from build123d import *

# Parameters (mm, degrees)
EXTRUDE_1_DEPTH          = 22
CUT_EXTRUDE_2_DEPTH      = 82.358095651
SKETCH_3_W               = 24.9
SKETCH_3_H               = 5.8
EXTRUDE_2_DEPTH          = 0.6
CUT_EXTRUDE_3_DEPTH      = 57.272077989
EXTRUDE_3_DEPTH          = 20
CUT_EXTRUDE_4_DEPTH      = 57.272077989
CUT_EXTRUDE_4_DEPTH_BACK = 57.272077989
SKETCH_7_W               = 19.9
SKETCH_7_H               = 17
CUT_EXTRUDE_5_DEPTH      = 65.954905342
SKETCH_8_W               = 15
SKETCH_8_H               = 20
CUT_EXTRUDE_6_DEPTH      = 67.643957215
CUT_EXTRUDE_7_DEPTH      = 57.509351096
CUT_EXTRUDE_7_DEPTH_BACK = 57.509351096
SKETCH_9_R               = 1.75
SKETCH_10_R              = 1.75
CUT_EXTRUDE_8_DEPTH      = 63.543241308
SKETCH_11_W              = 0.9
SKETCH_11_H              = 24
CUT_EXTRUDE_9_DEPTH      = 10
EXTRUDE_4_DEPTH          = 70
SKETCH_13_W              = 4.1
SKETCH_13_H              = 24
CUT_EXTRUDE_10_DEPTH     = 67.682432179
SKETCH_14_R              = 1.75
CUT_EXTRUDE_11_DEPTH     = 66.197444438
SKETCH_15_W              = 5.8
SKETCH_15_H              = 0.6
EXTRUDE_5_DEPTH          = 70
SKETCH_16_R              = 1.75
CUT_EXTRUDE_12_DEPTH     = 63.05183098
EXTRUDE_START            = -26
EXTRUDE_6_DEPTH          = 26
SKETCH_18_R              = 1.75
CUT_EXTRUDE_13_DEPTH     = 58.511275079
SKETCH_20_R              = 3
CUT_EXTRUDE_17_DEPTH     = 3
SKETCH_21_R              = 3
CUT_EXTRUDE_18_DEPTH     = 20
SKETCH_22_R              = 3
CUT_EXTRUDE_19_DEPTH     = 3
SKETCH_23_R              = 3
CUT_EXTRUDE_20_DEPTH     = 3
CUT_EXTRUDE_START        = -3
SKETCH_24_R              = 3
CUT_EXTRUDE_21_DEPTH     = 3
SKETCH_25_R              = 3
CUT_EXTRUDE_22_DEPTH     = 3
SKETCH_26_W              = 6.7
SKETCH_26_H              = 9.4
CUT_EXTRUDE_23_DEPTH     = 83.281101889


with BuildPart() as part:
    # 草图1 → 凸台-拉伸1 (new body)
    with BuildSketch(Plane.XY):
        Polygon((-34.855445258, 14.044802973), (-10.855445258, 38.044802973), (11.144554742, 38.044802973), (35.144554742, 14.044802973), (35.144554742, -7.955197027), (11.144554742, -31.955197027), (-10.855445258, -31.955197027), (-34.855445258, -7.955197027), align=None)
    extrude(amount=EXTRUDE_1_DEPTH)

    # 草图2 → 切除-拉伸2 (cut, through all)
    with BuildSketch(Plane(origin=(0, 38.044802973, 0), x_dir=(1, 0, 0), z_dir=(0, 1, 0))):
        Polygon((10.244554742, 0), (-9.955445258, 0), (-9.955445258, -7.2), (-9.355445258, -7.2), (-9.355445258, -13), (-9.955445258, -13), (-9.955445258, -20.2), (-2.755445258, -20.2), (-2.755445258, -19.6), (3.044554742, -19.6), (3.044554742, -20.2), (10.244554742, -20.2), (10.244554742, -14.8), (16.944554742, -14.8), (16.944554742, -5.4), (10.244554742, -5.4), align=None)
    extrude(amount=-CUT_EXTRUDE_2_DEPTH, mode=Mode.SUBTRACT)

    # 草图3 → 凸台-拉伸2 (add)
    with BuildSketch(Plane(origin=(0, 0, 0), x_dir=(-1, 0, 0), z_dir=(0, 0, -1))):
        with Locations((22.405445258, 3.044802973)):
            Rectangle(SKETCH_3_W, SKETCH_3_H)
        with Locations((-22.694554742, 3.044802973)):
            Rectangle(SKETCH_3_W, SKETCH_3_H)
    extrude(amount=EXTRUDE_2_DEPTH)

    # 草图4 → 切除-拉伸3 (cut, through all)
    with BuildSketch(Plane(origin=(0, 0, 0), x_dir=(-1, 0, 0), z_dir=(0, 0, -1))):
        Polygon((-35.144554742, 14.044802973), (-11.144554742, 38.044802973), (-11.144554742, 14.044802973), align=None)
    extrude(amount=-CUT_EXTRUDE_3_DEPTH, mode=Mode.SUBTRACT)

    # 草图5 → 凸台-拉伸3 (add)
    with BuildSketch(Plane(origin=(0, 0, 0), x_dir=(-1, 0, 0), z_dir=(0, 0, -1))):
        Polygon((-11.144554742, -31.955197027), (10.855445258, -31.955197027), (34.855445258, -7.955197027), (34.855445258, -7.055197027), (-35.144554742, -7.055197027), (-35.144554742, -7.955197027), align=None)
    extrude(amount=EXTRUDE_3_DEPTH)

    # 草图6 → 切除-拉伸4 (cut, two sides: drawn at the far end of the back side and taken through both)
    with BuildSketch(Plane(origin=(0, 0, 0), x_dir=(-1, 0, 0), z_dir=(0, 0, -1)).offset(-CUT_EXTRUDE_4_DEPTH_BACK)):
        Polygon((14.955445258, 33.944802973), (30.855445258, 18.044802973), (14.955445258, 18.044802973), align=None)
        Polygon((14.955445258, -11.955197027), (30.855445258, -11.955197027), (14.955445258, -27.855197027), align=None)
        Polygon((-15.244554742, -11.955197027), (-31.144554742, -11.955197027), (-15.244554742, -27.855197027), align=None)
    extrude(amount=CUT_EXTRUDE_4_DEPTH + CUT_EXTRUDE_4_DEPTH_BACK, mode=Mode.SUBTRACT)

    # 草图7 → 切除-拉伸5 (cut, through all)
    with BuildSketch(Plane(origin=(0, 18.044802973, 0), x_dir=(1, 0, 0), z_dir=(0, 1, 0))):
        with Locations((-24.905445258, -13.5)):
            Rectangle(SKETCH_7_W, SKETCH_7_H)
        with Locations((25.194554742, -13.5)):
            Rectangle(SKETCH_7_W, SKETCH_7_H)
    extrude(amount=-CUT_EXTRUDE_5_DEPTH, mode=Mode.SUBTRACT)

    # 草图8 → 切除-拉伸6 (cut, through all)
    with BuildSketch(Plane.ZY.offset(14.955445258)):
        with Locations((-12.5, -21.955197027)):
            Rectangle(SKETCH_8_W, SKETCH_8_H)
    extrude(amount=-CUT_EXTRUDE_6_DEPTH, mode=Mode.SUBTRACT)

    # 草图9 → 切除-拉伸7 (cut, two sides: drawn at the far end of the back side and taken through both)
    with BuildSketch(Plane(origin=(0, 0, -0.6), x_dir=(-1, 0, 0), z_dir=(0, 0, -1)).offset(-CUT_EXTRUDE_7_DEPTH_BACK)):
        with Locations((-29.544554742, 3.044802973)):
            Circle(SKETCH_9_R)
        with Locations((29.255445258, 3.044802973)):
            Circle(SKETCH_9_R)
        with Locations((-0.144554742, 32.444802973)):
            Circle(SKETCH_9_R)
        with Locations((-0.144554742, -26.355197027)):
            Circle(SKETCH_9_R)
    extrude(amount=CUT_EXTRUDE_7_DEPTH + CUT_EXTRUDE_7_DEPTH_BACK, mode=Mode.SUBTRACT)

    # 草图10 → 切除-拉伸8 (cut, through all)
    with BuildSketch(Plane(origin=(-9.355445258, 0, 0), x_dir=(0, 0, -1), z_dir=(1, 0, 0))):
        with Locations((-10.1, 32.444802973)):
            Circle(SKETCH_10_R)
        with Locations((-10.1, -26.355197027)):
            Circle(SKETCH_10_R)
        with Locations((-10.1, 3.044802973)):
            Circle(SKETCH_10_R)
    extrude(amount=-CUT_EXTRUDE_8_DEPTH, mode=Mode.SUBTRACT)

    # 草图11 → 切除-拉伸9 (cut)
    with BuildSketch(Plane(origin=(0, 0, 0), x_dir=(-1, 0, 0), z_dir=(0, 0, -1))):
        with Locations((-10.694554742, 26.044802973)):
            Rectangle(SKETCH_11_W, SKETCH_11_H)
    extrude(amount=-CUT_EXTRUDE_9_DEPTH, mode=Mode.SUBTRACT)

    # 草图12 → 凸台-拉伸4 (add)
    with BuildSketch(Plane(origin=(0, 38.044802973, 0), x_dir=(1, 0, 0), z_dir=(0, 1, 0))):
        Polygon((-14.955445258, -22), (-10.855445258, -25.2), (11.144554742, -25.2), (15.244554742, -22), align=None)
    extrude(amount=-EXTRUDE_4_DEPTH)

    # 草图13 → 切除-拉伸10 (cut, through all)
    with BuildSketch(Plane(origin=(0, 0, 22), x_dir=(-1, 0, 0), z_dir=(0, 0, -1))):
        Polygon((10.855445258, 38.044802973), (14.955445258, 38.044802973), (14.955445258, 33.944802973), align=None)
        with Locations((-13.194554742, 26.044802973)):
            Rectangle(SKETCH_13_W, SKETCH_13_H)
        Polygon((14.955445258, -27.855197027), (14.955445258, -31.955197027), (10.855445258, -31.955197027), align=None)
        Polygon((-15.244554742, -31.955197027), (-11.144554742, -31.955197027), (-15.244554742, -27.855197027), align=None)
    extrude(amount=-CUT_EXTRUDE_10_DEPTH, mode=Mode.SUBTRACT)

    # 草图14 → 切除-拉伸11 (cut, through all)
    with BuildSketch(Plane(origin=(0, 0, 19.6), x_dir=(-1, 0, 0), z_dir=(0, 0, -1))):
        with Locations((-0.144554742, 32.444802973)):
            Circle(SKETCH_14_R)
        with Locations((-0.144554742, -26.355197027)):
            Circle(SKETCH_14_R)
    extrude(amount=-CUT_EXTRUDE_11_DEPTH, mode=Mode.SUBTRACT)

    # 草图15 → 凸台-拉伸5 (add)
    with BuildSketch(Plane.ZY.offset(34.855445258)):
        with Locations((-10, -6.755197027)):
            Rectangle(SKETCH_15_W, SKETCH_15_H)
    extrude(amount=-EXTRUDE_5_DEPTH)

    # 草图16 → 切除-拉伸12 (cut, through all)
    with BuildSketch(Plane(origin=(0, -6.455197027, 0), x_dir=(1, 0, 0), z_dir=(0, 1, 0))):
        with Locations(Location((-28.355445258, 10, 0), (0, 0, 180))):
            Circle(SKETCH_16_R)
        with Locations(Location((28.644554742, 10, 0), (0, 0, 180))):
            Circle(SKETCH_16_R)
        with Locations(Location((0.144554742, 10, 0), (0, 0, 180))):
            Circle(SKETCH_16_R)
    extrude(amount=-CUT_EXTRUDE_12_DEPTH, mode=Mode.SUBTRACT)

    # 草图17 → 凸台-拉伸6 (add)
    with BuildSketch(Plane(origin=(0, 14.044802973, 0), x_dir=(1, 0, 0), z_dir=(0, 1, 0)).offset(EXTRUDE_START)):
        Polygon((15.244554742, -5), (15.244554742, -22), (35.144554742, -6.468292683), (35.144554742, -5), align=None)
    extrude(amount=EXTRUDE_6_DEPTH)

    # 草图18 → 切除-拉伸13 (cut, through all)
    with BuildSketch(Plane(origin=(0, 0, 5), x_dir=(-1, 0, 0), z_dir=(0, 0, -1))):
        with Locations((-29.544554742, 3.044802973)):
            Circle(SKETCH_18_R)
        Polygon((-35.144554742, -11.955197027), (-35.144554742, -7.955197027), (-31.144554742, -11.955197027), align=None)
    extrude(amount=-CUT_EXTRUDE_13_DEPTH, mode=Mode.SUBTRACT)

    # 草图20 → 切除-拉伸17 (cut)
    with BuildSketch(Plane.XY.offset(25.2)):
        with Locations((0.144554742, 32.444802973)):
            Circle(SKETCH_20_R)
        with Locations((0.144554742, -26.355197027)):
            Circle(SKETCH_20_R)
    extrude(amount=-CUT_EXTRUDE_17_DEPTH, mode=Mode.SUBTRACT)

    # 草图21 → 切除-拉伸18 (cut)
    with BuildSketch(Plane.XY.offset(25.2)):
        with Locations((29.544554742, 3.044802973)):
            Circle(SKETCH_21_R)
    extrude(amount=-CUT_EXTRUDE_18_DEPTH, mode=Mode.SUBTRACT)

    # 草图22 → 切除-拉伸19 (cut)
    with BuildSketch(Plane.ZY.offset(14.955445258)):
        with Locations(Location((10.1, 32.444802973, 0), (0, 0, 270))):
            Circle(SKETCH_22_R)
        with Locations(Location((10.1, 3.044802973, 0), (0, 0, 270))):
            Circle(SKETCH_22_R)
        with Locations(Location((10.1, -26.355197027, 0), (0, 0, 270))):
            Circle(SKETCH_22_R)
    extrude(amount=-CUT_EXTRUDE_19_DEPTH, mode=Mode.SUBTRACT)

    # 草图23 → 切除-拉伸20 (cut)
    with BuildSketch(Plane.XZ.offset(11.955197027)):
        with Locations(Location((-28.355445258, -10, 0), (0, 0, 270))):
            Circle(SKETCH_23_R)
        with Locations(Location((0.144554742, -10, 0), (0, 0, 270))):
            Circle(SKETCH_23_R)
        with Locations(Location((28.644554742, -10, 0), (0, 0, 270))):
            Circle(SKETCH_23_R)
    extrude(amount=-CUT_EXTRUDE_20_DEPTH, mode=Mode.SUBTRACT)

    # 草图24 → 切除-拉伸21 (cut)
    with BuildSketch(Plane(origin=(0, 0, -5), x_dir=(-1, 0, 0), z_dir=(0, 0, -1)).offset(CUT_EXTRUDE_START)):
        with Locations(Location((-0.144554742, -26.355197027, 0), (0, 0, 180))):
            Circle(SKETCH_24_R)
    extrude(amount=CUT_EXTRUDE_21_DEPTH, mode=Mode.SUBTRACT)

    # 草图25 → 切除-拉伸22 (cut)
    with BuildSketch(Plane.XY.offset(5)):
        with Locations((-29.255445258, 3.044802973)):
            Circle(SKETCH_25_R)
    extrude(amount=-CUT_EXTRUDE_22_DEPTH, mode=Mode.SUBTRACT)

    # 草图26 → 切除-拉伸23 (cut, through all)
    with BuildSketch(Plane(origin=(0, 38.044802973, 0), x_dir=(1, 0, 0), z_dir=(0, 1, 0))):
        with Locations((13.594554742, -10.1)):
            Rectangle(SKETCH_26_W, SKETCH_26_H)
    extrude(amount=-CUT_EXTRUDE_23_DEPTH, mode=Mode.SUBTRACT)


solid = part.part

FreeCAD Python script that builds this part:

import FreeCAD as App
import Part
import Sketcher

V = App.Vector

doc = App.newDocument("Part")
body = doc.addObject("PartDesign::Body", "Body")

# Sketch on XY plane
sketch1 = doc.addObject("Sketcher::SketchObject", "Sketch")
body.addObject(sketch1)
sketch1.AttachmentSupport = (doc.XY_Plane, [""])
sketch1.MapMode = "FlatFace"
sketch1.addGeometry([
    Part.LineSegment(V(-10.855445, 38.044803, 0), V(-34.855445, 14.044803, 0)),  # 0
    Part.LineSegment(V(-34.855445, 14.044803, 0), V(-34.855445, -7.955197, 0)),  # 1
    Part.LineSegment(V(-34.855445, -7.955197, 0), V(-10.855445, -31.955197, 0)),  # 2
    Part.LineSegment(V(-10.855445, -31.955197, 0), V(11.144555, -31.955197, 0)),  # 3
    Part.LineSegment(V(11.144555, -31.955197, 0), V(35.144555, -7.955197, 0)),  # 4
    Part.LineSegment(V(35.144555, -7.955197, 0), V(35.144555, 14.044803, 0)),  # 5
    Part.LineSegment(V(35.144555, 14.044803, 0), V(11.144555, 38.044803, 0)),  # 6
    Part.LineSegment(V(11.144555, 38.044803, 0), V(-10.855445, 38.044803, 0)),  # 7
], False)
sketch1.addConstraint([
    Sketcher.Constraint("Coincident", 0, 2, 1, 1),
    Sketcher.Constraint("Coincident", 1, 2, 2, 1),
    Sketcher.Constraint("Coincident", 2, 2, 3, 1),
    Sketcher.Constraint("Coincident", 3, 2, 4, 1),
    Sketcher.Constraint("Coincident", 4, 2, 5, 1),
    Sketcher.Constraint("Coincident", 5, 2, 6, 1),
    Sketcher.Constraint("Coincident", 6, 2, 7, 1),
    Sketcher.Constraint("Coincident", 7, 2, 0, 1),
    Sketcher.Constraint("Vertical", 1),
    Sketcher.Constraint("Horizontal", 3),
    Sketcher.Constraint("Vertical", 5),
    Sketcher.Constraint("Horizontal", 7),
    Sketcher.Constraint("Perpendicular", 0, 2),
    Sketcher.Constraint("Perpendicular", 2, 4),
    Sketcher.Constraint("Perpendicular", 4, 6),
    Sketcher.Constraint("Horizontal", 1, 2, 4, 2),
    Sketcher.Constraint("Horizontal", 0, 2, 5, 2),
    Sketcher.Constraint("Vertical", 3, 2, 6, 2),
    Sketcher.Constraint("Vertical", 2, 2, 7, 2),
    Sketcher.Constraint("Equal", 7, 1),
    Sketcher.Constraint("DistanceX", 3, 1, 3, 2, 22.0),
    Sketcher.Constraint("DistanceX", 1, 2, 2, 2, 24.0),
    Sketcher.Constraint("DistanceX", 0, 2, -1, 1, 34.855445),
    Sketcher.Constraint("DistanceY", -1, 1, 0, 2, 14.044803),
])
pad1 = doc.addObject("PartDesign::Pad", "Pad")
body.addObject(pad1)
pad1.Profile = sketch1
pad1.Length = 22

# Sketch on XZ plane
sketch2 = doc.addObject("Sketcher::SketchObject", "Sketch001")
body.addObject(sketch2)
sketch2.AttachmentSupport = (doc.XZ_Plane, [""])
sketch2.MapMode = "FlatFace"
sketch2.AttachmentOffset = App.Placement(V(0, 0, -38.044803), App.Rotation())
sketch2.addGeometry([
    Part.LineSegment(V(10.244555, 0, 0), V(-9.955445, 0, 0)),  # 0
    Part.LineSegment(V(-9.955445, 0, 0), V(-9.955445, 7.2, 0)),  # 1
    Part.LineSegment(V(-9.955445, 7.2, 0), V(-9.355445, 7.2, 0)),  # 2
    Part.LineSegment(V(-9.355445, 7.2, 0), V(-9.355445, 13, 0)),  # 3
    Part.LineSegment(V(-9.355445, 13, 0), V(-9.955445, 13, 0)),  # 4
    Part.LineSegment(V(-9.955445, 13, 0), V(-9.955445, 20.2, 0)),  # 5
    Part.LineSegment(V(-9.955445, 20.2, 0), V(-2.755445, 20.2, 0)),  # 6
    Part.LineSegment(V(-2.755445, 20.2, 0), V(-2.755445, 19.6, 0)),  # 7
    Part.LineSegment(V(-2.755445, 19.6, 0), V(3.044555, 19.6, 0)),  # 8
    Part.LineSegment(V(3.044555, 19.6, 0), V(3.044555, 20.2, 0)),  # 9
    Part.LineSegment(V(3.044555, 20.2, 0), V(10.244555, 20.2, 0)),  # 10
    Part.LineSegment(V(10.244555, 20.2, 0), V(10.244555, 14.8, 0)),  # 11
    Part.LineSegment(V(10.244555, 14.8, 0), V(16.944555, 14.8, 0)),  # 12
    Part.LineSegment(V(16.944555, 14.8, 0), V(16.944555, 5.4, 0)),  # 13
    Part.LineSegment(V(16.944555, 5.4, 0), V(10.244555, 5.4, 0)),  # 14
    Part.LineSegment(V(10.244555, 5.4, 0), V(10.244555, 0, 0)),  # 15
], False)
sketch2.addConstraint([
    Sketcher.Constraint("Coincident", 0, 2, 1, 1),
    Sketcher.Constraint("Coincident", 1, 2, 2, 1),
    Sketcher.Constraint("Coincident", 2, 2, 3, 1),
    Sketcher.Constraint("Coincident", 3, 2, 4, 1),
    Sketcher.Constraint("Coincident", 4, 2, 5, 1),
    Sketcher.Constraint("Coincident", 5, 2, 6, 1),
    Sketcher.Constraint("Coincident", 6, 2, 7, 1),
    Sketcher.Constraint("Coincident", 7, 2, 8, 1),
    Sketcher.Constraint("Coincident", 8, 2, 9, 1),
    Sketcher.Constraint("Coincident", 9, 2, 10, 1),
    Sketcher.Constraint("Coincident", 10, 2, 11, 1),
    Sketcher.Constraint("Coincident", 11, 2, 12, 1),
    Sketcher.Constraint("Coincident", 12, 2, 13, 1),
    Sketcher.Constraint("Coincident", 13, 2, 14, 1),
    Sketcher.Constraint("Coincident", 14, 2, 15, 1),
    Sketcher.Constraint("Coincident", 15, 2, 0, 1),
    Sketcher.Constraint("Horizontal", 0),
    Sketcher.Constraint("Vertical", 1),
    Sketcher.Constraint("Horizontal", 2),
    Sketcher.Constraint("Vertical", 3),
    Sketcher.Constraint("Horizontal", 4),
    Sketcher.Constraint("Vertical", 5),
    Sketcher.Constraint("Horizontal", 6),
    Sketcher.Constraint("Vertical", 7),
    Sketcher.Constraint("Horizontal", 8),
    Sketcher.Constraint("Vertical", 9),
    Sketcher.Constraint("Horizontal", 10),
    Sketcher.Constraint("Vertical", 11),
    Sketcher.Constraint("Horizontal", 12),
    Sketcher.Constraint("Vertical", 13),
    Sketcher.Constraint("Horizontal", 14),
    Sketcher.Constraint("Vertical", 15),
    Sketcher.Constraint("PointOnObject", 0, 2, -1),
    Sketcher.Constraint("Horizontal", 6, 2, 9, 2),
    Sketcher.Constraint("Vertical", 1, 2, 4, 2),
    Sketcher.Constraint("Vertical", 11, 2, 14, 2),
    Sketcher.Constraint("Equal", 6, 10),
    Sketcher.Constraint("Equal", 10, 1),
    Sketcher.Constraint("Equal", 8, 3),
    Sketcher.Constraint("Equal", 1, 5),
    Sketcher.Constraint("Equal", 4, 7),
    Sketcher.Constraint("Equal", 11, 15),
    Sketcher.Constraint("DistanceX", 0, 2, 0, 1, 20.2),
    Sketcher.Constraint("DistanceX", 2, 1, 2, 2, 0.6),
    Sketcher.Constraint("DistanceX", 6, 1, 6, 2, 7.2),
    Sketcher.Constraint("DistanceX", 12, 1, 12, 2, 6.7),
    Sketcher.Constraint("DistanceY", 11, 2, 11, 1, 5.4),
    Sketcher.Constraint("DistanceX", 0, 2, -1, 1, 9.955445),
])
pocket1 = doc.addObject("PartDesign::Pocket", "Pocket")
body.addObject(pocket1)
pocket1.Profile = sketch2
pocket1.Type = "ThroughAll"
pocket1.Reversed = True

# Sketch on XY plane
sketch3 = doc.addObject("Sketcher::SketchObject", "Sketch002")
body.addObject(sketch3)
sketch3.AttachmentSupport = (doc.XY_Plane, [""])
sketch3.MapMode = "FlatFace"
sketch3.addGeometry([
    Part.LineSegment(V(-9.955445, 5.944803, 0), V(-9.955445, 0.144803, 0)),  # 0
    Part.LineSegment(V(-9.955445, 0.144803, 0), V(-34.855445, 0.144803, 0)),  # 1
    Part.LineSegment(V(-34.855445, 0.144803, 0), V(-34.855445, 5.944803, 0)),  # 2
    Part.LineSegment(V(-34.855445, 5.944803, 0), V(-9.955445, 5.944803, 0)),  # 3
    Part.LineSegment(V(35.144555, 5.944803, 0), V(35.144555, 0.144803, 0)),  # 4
    Part.LineSegment(V(35.144555, 0.144803, 0), V(10.244555, 0.144803, 0)),  # 5
    Part.LineSegment(V(10.244555, 0.144803, 0), V(10.244555, 5.944803, 0)),  # 6
    Part.LineSegment(V(10.244555, 5.944803, 0), V(35.144555, 5.944803, 0)),  # 7
], False)
sketch3.addConstraint([
    Sketcher.Constraint("Coincident", 0, 2, 1, 1),
    Sketcher.Constraint("Coincident", 1, 2, 2, 1),
    Sketcher.Constraint("Coincident", 2, 2, 3, 1),
    Sketcher.Constraint("Coincident", 3, 2, 0, 1),
    Sketcher.Constraint("Coincident", 4, 2, 5, 1),
    Sketcher.Constraint("Coincident", 5, 2, 6, 1),
    Sketcher.Constraint("Coincident", 6, 2, 7, 1),
    Sketcher.Constraint("Coincident", 7, 2, 4, 1),
    Sketcher.Constraint("Vertical", 0),
    Sketcher.Constraint("Horizontal", 1),
    Sketcher.Constraint("Vertical", 2),
    Sketcher.Constraint("Horizontal", 3),
    Sketcher.Constraint("Vertical", 4),
    Sketcher.Constraint("Horizontal", 5),
    Sketcher.Constraint("Vertical", 6),
    Sketcher.Constraint("Horizontal", 7),
    Sketcher.Constraint("Horizontal", 1, 2, 4, 2),
    Sketcher.Constraint("Horizontal", 3, 2, 6, 2),
    Sketcher.Constraint("Equal", 3, 5),
    Sketcher.Constraint("DistanceX", 1, 2, 1, 1, 24.9),
    Sketcher.Constraint("DistanceY", 0, 2, 0, 1, 5.8),
    Sketcher.Constraint("DistanceX", 1, 2, 4, 2, 70.0),
    Sketcher.Constraint("DistanceX", 0, 2, -1, 1, 9.955445),
    Sketcher.Constraint("DistanceY", -1, 1, 0, 2, 0.144803),
])
pad2 = doc.addObject("PartDesign::Pad", "Pad001")
body.addObject(pad2)
pad2.Profile = sketch3
pad2.Length = 0.6
pad2.Reversed = True

# Sketch on XY plane
sketch4 = doc.addObject("Sketcher::SketchObject", "Sketch003")
body.addObject(sketch4)
sketch4.AttachmentSupport = (doc.XY_Plane, [""])
sketch4.MapMode = "FlatFace"
sketch4.addGeometry([
    Part.LineSegment(V(11.144555, 38.044803, 0), V(35.144555, 14.044803, 0)),
    Part.LineSegment(V(35.144555, 14.044803, 0), V(11.144555, 14.044803, 0)),
    Part.LineSegment(V(11.144555, 14.044803, 0), V(11.144555, 38.044803, 0)),
], False)
sketch4.addConstraint([
    Sketcher.Constraint("Coincident", 0, 2, 1, 1),
    Sketcher.Constraint("Coincident", 1, 2, 2, 1),
    Sketcher.Constraint("Coincident", 2, 2, 0, 1),
    Sketcher.Constraint("Horizontal", 1),
    Sketcher.Constraint("Vertical", 2),
    Sketcher.Constraint("Equal", 1, 2),
    Sketcher.Constraint("DistanceX", 1, 2, 1, 1, 24.0),
    Sketcher.Constraint("DistanceX", -1, 1, 0, 2, 35.144555),
    Sketcher.Constraint("DistanceY", -1, 1, 0, 2, 14.044803),
])
pocket2 = doc.addObject("PartDesign::Pocket", "Pocket001")
body.addObject(pocket2)
pocket2.Profile = sketch4
pocket2.Type = "ThroughAll"
pocket2.Reversed = True

# Sketch on XY plane
sketch5 = doc.addObject("Sketcher::SketchObject", "Sketch004")
body.addObject(sketch5)
sketch5.AttachmentSupport = (doc.XY_Plane, [""])
sketch5.MapMode = "FlatFace"
sketch5.addGeometry([
    Part.LineSegment(V(11.144555, -31.955197, 0), V(-10.855445, -31.955197, 0)),  # 0
    Part.LineSegment(V(-10.855445, -31.955197, 0), V(-34.855445, -7.955197, 0)),  # 1
    Part.LineSegment(V(-34.855445, -7.955197, 0), V(-34.855445, -7.055197, 0)),  # 2
    Part.LineSegment(V(-34.855445, -7.055197, 0), V(35.144555, -7.055197, 0)),  # 3
    Part.LineSegment(V(35.144555, -7.055197, 0), V(35.144555, -7.955197, 0)),  # 4
    Part.LineSegment(V(35.144555, -7.955197, 0), V(11.144555, -31.955197, 0)),  # 5
], False)
sketch5.addConstraint([
    Sketcher.Constraint("Coincident", 0, 2, 1, 1),
    Sketcher.Constraint("Coincident", 1, 2, 2, 1),
    Sketcher.Constraint("Coincident", 2, 2, 3, 1),
    Sketcher.Constraint("Coincident", 3, 2, 4, 1),
    Sketcher.Constraint("Coincident", 4, 2, 5, 1),
    Sketcher.Constraint("Coincident", 5, 2, 0, 1),
    Sketcher.Constraint("Horizontal", 0),
    Sketcher.Constraint("Vertical", 2),
    Sketcher.Constraint("Horizontal", 3),
    Sketcher.Constraint("Vertical", 4),
    Sketcher.Constraint("Perpendicular", 1, 5),
    Sketcher.Constraint("Horizontal", 1, 2, 4, 2),
    Sketcher.Constraint("Equal", 1, 5),
    Sketcher.Constraint("DistanceX", 0, 2, 0, 1, 22.0),
    Sketcher.Constraint("DistanceX", 3, 1, 3, 2, 70.0),
    Sketcher.Constraint("DistanceY", 2, 1, 2, 2, 0.9),
    Sketcher.Constraint("DistanceX", 0, 2, -1, 1, 10.855445),
    Sketcher.Constraint("DistanceY", 0, 2, -1, 1, 31.955197),
])
pad3 = doc.addObject("PartDesign::Pad", "Pad002")
body.addObject(pad3)
pad3.Profile = sketch5
pad3.Length = 20
pad3.Reversed = True

# Sketch on XY plane
sketch6 = doc.addObject("Sketcher::SketchObject", "Sketch005")
body.addObject(sketch6)
sketch6.AttachmentSupport = (doc.XY_Plane, [""])
sketch6.MapMode = "FlatFace"
sketch6.addGeometry([
    Part.LineSegment(V(-30.855445, 18.044803, 0), V(-14.955445, 33.944803, 0)),  # 0
    Part.LineSegment(V(-14.955445, 33.944803, 0), V(-14.955445, 18.044803, 0)),  # 1
    Part.LineSegment(V(-14.955445, 18.044803, 0), V(-30.855445, 18.044803, 0)),  # 2
    Part.LineSegment(V(-30.855445, -11.955197, 0), V(-14.955445, -11.955197, 0)),  # 3
    Part.LineSegment(V(-14.955445, -11.955197, 0), V(-14.955445, -27.855197, 0)),  # 4
    Part.LineSegment(V(-14.955445, -27.855197, 0), V(-30.855445, -11.955197, 0)),  # 5
    Part.LineSegment(V(15.244555, -11.955197, 0), V(31.144555, -11.955197, 0)),  # 6
    Part.LineSegment(V(31.144555, -11.955197, 0), V(15.244555, -27.855197, 0)),  # 7
    Part.LineSegment(V(15.244555, -27.855197, 0), V(15.244555, -11.955197, 0)),  # 8
], False)
sketch6.addConstraint([
    Sketcher.Constraint("Coincident", 0, 2, 1, 1),
    Sketcher.Constraint("Coincident", 1, 2, 2, 1),
    Sketcher.Constraint("Coincident", 2, 2, 0, 1),
    Sketcher.Constraint("Coincident", 3, 2, 4, 1),
    Sketcher.Constraint("Coincident", 4, 2, 5, 1),
    Sketcher.Constraint("Coincident", 5, 2, 3, 1),
    Sketcher.Constraint("Coincident", 6, 2, 7, 1),
    Sketcher.Constraint("Coincident", 7, 2, 8, 1),
    Sketcher.Constraint("Coincident", 8, 2, 6, 1),
    Sketcher.Constraint("Vertical", 1),
    Sketcher.Constraint("Horizontal", 2),
    Sketcher.Constraint("Horizontal", 3),
    Sketcher.Constraint("Vertical", 4),
    Sketcher.Constraint("Horizontal", 6),
    Sketcher.Constraint("Vertical", 8),
    Sketcher.Constraint("Perpendicular", 0, 5),
    Sketcher.Constraint("Perpendicular", 5, 7),
    Sketcher.Constraint("Horizontal", 5, 2, 6, 2),
    Sketcher.Constraint("Horizontal", 4, 2, 7, 2),
    Sketcher.Constraint("Vertical", 1, 2, 3, 2),
    Sketcher.Constraint("Vertical", 2, 2, 5, 2),
    Sketcher.Constraint("Equal", 3, 6),
    Sketcher.Constraint("DistanceX", 2, 2, 2, 1, 15.9),
    Sketcher.Constraint("DistanceY", 3, 2, 1, 2, 30.0),
    Sketcher.Constraint("DistanceX", 5, 2, 6, 2, 62.0),
    Sketcher.Constraint("DistanceX", 0, 2, -1, 1, 14.955445),
    Sketcher.Constraint("DistanceY", -1, 1, 0, 2, 33.944803),
])
pocket3 = doc.addObject("PartDesign::Pocket", "Pocket002")
body.addObject(pocket3)
pocket3.Profile = sketch6
pocket3.Type = "ThroughAll"
pocket3.Midplane = True

# Sketch on XZ plane
sketch7 = doc.addObject("Sketcher::SketchObject", "Sketch006")
body.addObject(sketch7)
sketch7.AttachmentSupport = (doc.XZ_Plane, [""])
sketch7.MapMode = "FlatFace"
sketch7.AttachmentOffset = App.Placement(V(0, 0, -18.044803), App.Rotation())
sketch7.addGeometry([
    Part.LineSegment(V(-34.855445, 5, 0), V(-34.855445, 22, 0)),  # 0
    Part.LineSegment(V(-34.855445, 22, 0), V(-14.955445, 22, 0)),  # 1
    Part.LineSegment(V(-14.955445, 22, 0), V(-14.955445, 5, 0)),  # 2
    Part.LineSegment(V(-14.955445, 5, 0), V(-34.855445, 5, 0)),  # 3
    Part.LineSegment(V(15.244555, 5, 0), V(15.244555, 22, 0)),  # 4
    Part.LineSegment(V(15.244555, 22, 0), V(35.144555, 22, 0)),  # 5
    Part.LineSegment(V(35.144555, 22, 0), V(35.144555, 5, 0)),  # 6
    Part.LineSegment(V(35.144555, 5, 0), V(15.244555, 5, 0)),  # 7
], False)
sketch7.addConstraint([
    Sketcher.Constraint("Coincident", 0, 2, 1, 1),
    Sketcher.Constraint("Coincident", 1, 2, 2, 1),
    Sketcher.Constraint("Coincident", 2, 2, 3, 1),
    Sketcher.Constraint("Coincident", 3, 2, 0, 1),
    Sketcher.Constraint("Coincident", 4, 2, 5, 1),
    Sketcher.Constraint("Coincident", 5, 2, 6, 1),
    Sketcher.Constraint("Coincident", 6, 2, 7, 1),
    Sketcher.Constraint("Coincident", 7, 2, 4, 1),
    Sketcher.Constraint("Vertical", 0),
    Sketcher.Constraint("Horizontal", 1),
    Sketcher.Constraint("Vertical", 2),
    Sketcher.Constraint("Horizontal", 3),
    Sketcher.Constraint("Vertical", 4),
    Sketcher.Constraint("Horizontal", 5),
    Sketcher.Constraint("Vertical", 6),
    Sketcher.Constraint("Horizontal", 7),
    Sketcher.Constraint("Horizontal", 1, 2, 4, 2),
    Sketcher.Constraint("Horizontal", 3, 2, 6, 2),
    Sketcher.Constraint("Equal", 3, 5),
    Sketcher.Constraint("DistanceY", 0, 1, 0, 2, 17.0),
    Sketcher.Constraint("DistanceX", 1, 1, 1, 2, 19.9),
    Sketcher.Constraint("DistanceY", -1, 1, 0, 2, 22.0),
    Sketcher.Constraint("DistanceX", 0, 2, 5, 2, 70.0),
    Sketcher.Constraint("DistanceX", 0, 2, -1, 1, 34.855445),
])
pocket4 = doc.addObject("PartDesign::Pocket", "Pocket003")
body.addObject(pocket4)
pocket4.Profile = sketch7
pocket4.Type = "ThroughAll"
pocket4.Reversed = True

# Sketch on YZ plane
sketch8 = doc.addObject("Sketcher::SketchObject", "Sketch007")
body.addObject(sketch8)
sketch8.AttachmentSupport = (doc.YZ_Plane, [""])
sketch8.MapMode = "FlatFace"
sketch8.AttachmentOffset = App.Placement(V(0, 0, -14.955445), App.Rotation())
sketch8.addGeometry([
    Part.LineSegment(V(-11.955197, -20, 0), V(-31.955197, -20, 0)),
    Part.LineSegment(V(-31.955197, -20, 0), V(-31.955197, -5, 0)),
    Part.LineSegment(V(-31.955197, -5, 0), V(-11.955197, -5, 0)),
    Part.LineSegment(V(-11.955197, -5, 0), V(-11.955197, -20, 0)),
], False)
sketch8.addConstraint([
    Sketcher.Constraint("Coincident", 0, 2, 1, 1),
    Sketcher.Constraint("Coincident", 1, 2, 2, 1),
    Sketcher.Constraint("Coincident", 2, 2, 3, 1),
    Sketcher.Constraint("Coincident", 3, 2, 0, 1),
    Sketcher.Constraint("Horizontal", 0),
    Sketcher.Constraint("Vertical", 1),
    Sketcher.Constraint("Horizontal", 2),
    Sketcher.Constraint("Vertical", 3),
    Sketcher.Constraint("DistanceX", 0, 2, 0, 1, 20.0),
    Sketcher.Constraint("DistanceY", 1, 1, 1, 2, 15.0),
    Sketcher.Constraint("DistanceY", 0, 2, -1, 1, 20.0),
    Sketcher.Constraint("DistanceX", 0, 2, -1, 1, 31.955197),
])
pocket5 = doc.addObject("PartDesign::Pocket", "Pocket004")
body.addObject(pocket5)
pocket5.Profile = sketch8
pocket5.Type = "ThroughAll"
pocket5.Reversed = True

# Sketch on XY plane
sketch9 = doc.addObject("Sketcher::SketchObject", "Sketch008")
body.addObject(sketch9)
sketch9.AttachmentSupport = (doc.XY_Plane, [""])
sketch9.MapMode = "FlatFace"
sketch9.AttachmentOffset = App.Placement(V(0, 0, -0.6), App.Rotation())
sketch9.addGeometry([
    Part.Circle(V(29.544555, 3.044803, 0), V(0, 0, 1), 1.75),
    Part.Circle(V(-29.255445, 3.044803, 0), V(0, 0, 1), 1.75),
    Part.Circle(V(0.144555, 32.444803, 0), V(0, 0, 1), 1.75),
    Part.Circle(V(0.144555, -26.355197, 0), V(0, 0, 1), 1.75),
], False)
sketch9.addConstraint([
    Sketcher.Constraint("Equal", 0, 1),
    Sketcher.Constraint("Equal", 1, 2),
    Sketcher.Constraint("Equal", 2, 3),
    Sketcher.Constraint("Horizontal", 0, 3, 1, 3),
    Sketcher.Constraint("Vertical", 2, 3, 3, 3),
    Sketcher.Constraint("Diameter", 0, 3.5),
    Sketcher.Constraint("DistanceX", 1, 3, 0, 3, 58.8),
    Sketcher.Constraint("DistanceX", 2, 3, 0, 3, 29.4),
    Sketcher.Constraint("DistanceY", 0, 3, 2, 3, 29.4),
    Sketcher.Constraint("DistanceY", 3, 3, 0, 3, 29.4),
    Sketcher.Constraint("DistanceX", -1, 1, 0, 3, 29.544555),
    Sketcher.Constraint("DistanceY", -1, 1, 0, 3, 3.044803),
])
pocket6 = doc.addObject("PartDesign::Pocket", "Pocket005")
body.addObject(pocket6)
pocket6.Profile = sketch9
pocket6.Type = "ThroughAll"
pocket6.Midplane = True

# Sketch on YZ plane
sketch10 = doc.addObject("Sketcher::SketchObject", "Sketch009")
body.addObject(sketch10)
sketch10.AttachmentSupport = (doc.YZ_Plane, [""])
sketch10.MapMode = "FlatFace"
sketch10.AttachmentOffset = App.Placement(V(0, 0, -9.355445), App.Rotation())
sketch10.addGeometry([
    Part.Circle(V(32.444803, 10.1, 0), V(0, 0, 1), 1.75),
    Part.Circle(V(-26.355197, 10.1, 0), V(0, 0, 1), 1.75),
    Part.Circle(V(3.044803, 10.1, 0), V(0, 0, 1), 1.75),
], False)
sketch10.addConstraint([
    Sketcher.Constraint("Equal", 0, 1),
    Sketcher.Constraint("Equal", 1, 2),
    Sketcher.Constraint("Horizontal", 0, 3, 1, 3),
    Sketcher.Constraint("Horizontal", 1, 3, 2, 3),
    Sketcher.Constraint("Diameter", 0, 3.5),
    Sketcher.Constraint("DistanceY", -1, 1, 0, 3, 10.1),
    Sketcher.Constraint("DistanceX", 1, 3, 0, 3, 58.8),
    Sketcher.Constraint("DistanceX", 1, 3, 2, 3, 29.4),
    Sketcher.Constraint("DistanceX", -1, 1, 0, 3, 32.444803),
])
pocket7 = doc.addObject("PartDesign::Pocket", "Pocket006")
body.addObject(pocket7)
pocket7.Profile = sketch10
pocket7.Type = "ThroughAll"

# Sketch on XY plane
sketch11 = doc.addObject("Sketcher::SketchObject", "Sketch010")
body.addObject(sketch11)
sketch11.AttachmentSupport = (doc.XY_Plane, [""])
sketch11.MapMode = "FlatFace"
sketch11.addGeometry([
    Part.LineSegment(V(11.144555, 38.044803, 0), V(11.144555, 14.044803, 0)),
    Part.LineSegment(V(11.144555, 14.044803, 0), V(10.244555, 14.044803, 0)),
    Part.LineSegment(V(10.244555, 14.044803, 0), V(10.244555, 38.044803, 0)),
    Part.LineSegment(V(10.244555, 38.044803, 0), V(11.144555, 38.044803, 0)),
], False)
sketch11.addConstraint([
    Sketcher.Constraint("Coincident", 0, 2, 1, 1),
    Sketcher.Constraint("Coincident", 1, 2, 2, 1),
    Sketcher.Constraint("Coincident", 2, 2, 3, 1),
    Sketcher.Constraint("Coincident", 3, 2, 0, 1),
    Sketcher.Constraint("Vertical", 0),
    Sketcher.Constraint("Horizontal", 1),
    Sketcher.Constraint("Vertical", 2),
    Sketcher.Constraint("Horizontal", 3),
    Sketcher.Constraint("DistanceY", 0, 2, 0, 1, 24.0),
    Sketcher.Constraint("DistanceX", 1, 2, 1, 1, 0.9),
    Sketcher.Constraint("DistanceX", -1, 1, 0, 2, 11.144555),
    Sketcher.Constraint("DistanceY", -1, 1, 0, 2, 14.044803),
])
pocket8 = doc.addObject("PartDesign::Pocket", "Pocket007")
body.addObject(pocket8)
pocket8.Profile = sketch11
pocket8.Length = 10
pocket8.Reversed = True

# Sketch on XZ plane
sketch12 = doc.addObject("Sketcher::SketchObject", "Sketch011")
body.addObject(sketch12)
sketch12.AttachmentSupport = (doc.XZ_Plane, [""])
sketch12.MapMode = "FlatFace"
sketch12.AttachmentOffset = App.Placement(V(0, 0, -38.044803), App.Rotation())
sketch12.addGeometry([
    Part.LineSegment(V(-14.955445, 22, 0), V(-10.855445, 25.2, 0)),
    Part.LineSegment(V(-10.855445, 25.2, 0), V(11.144555, 25.2, 0)),
    Part.LineSegment(V(11.144555, 25.2, 0), V(15.244555, 22, 0)),
    Part.LineSegment(V(15.244555, 22, 0), V(-14.955445, 22, 0)),
], False)
sketch12.addConstraint([
    Sketcher.Constraint("Coincident", 0, 2, 1, 1),
    Sketcher.Constraint("Coincident", 1, 2, 2, 1),
    Sketcher.Constraint("Coincident", 2, 2, 3, 1),
    Sketcher.Constraint("Coincident", 3, 2, 0, 1),
    Sketcher.Constraint("Horizontal", 1),
    Sketcher.Constraint("Horizontal", 3),
    Sketcher.Constraint("Equal", 0, 2),
    Sketcher.Constraint("DistanceX", 1, 1, 1, 2, 22.0),
    Sketcher.Constraint("DistanceX", 3, 2, 3, 1, 30.2),
    Sketcher.Constraint("DistanceY", -1, 1, 2, 2, 22.0),
    Sketcher.Constraint("DistanceY", -1, 1, 0, 2, 25.2),
    Sketcher.Constraint("DistanceX", 0, 2, -1, 1, 10.855445),
])
pad4 = doc.addObject("PartDesign::Pad", "Pad003")
body.addObject(pad4)
pad4.Profile = sketch12
pad4.Length = 70

# Sketch on XY plane
sketch13 = doc.addObject("Sketcher::SketchObject", "Sketch012")
body.addObject(sketch13)
sketch13.AttachmentSupport = (doc.XY_Plane, [""])
sketch13.MapMode = "FlatFace"
sketch13.AttachmentOffset = App.Placement(V(0, 0, 22), App.Rotation())
sketch13.addGeometry([
    Part.LineSegment(V(-14.955445, 38.044803, 0), V(-10.855445, 38.044803, 0)),  # 0
    Part.LineSegment(V(-10.855445, 38.044803, 0), V(-14.955445, 33.944803, 0)),  # 1
    Part.LineSegment(V(-14.955445, 33.944803, 0), V(-14.955445, 38.044803, 0)),  # 2
    Part.LineSegment(V(15.244555, 38.044803, 0), V(15.244555, 14.044803, 0)),  # 3
    Part.LineSegment(V(15.244555, 14.044803, 0), V(11.144555, 14.044803, 0)),  # 4
    Part.LineSegment(V(11.144555, 14.044803, 0), V(11.144555, 38.044803, 0)),  # 5
    Part.LineSegment(V(11.144555, 38.044803, 0), V(15.244555, 38.044803, 0)),  # 6
    Part.LineSegment(V(-14.955445, -31.955197, 0), V(-14.955445, -27.855197, 0)),  # 7
    Part.LineSegment(V(-14.955445, -27.855197, 0), V(-10.855445, -31.955197, 0)),  # 8
    Part.LineSegment(V(-10.855445, -31.955197, 0), V(-14.955445, -31.955197, 0)),  # 9
    Part.LineSegment(V(15.244555, -31.955197, 0), V(11.144555, -31.955197, 0)),  # 10
    Part.LineSegment(V(11.144555, -31.955197, 0), V(15.244555, -27.855197, 0)),  # 11
    Part.LineSegment(V(15.244555, -27.855197, 0), V(15.244555, -31.955197, 0)),  # 12
], False)
sketch13.addConstraint([
    Sketcher.Constraint("Coincident", 0, 2, 1, 1),
    Sketcher.Constraint("Coincident", 1, 2, 2, 1),
    Sketcher.Constraint("Coincident", 2, 2, 0, 1),
    Sketcher.Constraint("Coincident", 3, 2, 4, 1),
    Sketcher.Constraint("Coincident", 4, 2, 5, 1),
    Sketcher.Constraint("Coincident", 5, 2, 6, 1),
    Sketcher.Constraint("Coincident", 6, 2, 3, 1),
    Sketcher.Constraint("Coincident", 7, 2, 8, 1),
    Sketcher.Constraint("Coincident", 8, 2, 9, 1),
    Sketcher.Constraint("Coincident", 9, 2, 7, 1),
    Sketcher.Constraint("Coincident", 10, 2, 11, 1),
    Sketcher.Constraint("Coincident", 11, 2, 12, 1),
    Sketcher.Constraint("Coincident", 12, 2, 10, 1),
    Sketcher.Constraint("Horizontal", 0),
    Sketcher.Constraint("Vertical", 2),
    Sketcher.Constraint("Vertical", 3),
    Sketcher.Constraint("Horizontal", 4),
    Sketcher.Constraint("Vertical", 5),
    Sketcher.Constraint("Horizontal", 6),
    Sketcher.Constraint("Vertical", 7),
    Sketcher.Constraint("Horizontal", 9),
    Sketcher.Constraint("Horizontal", 10),
    Sketcher.Constraint("Vertical", 12),
    Sketcher.Constraint("Perpendicular", 1, 8),
    Sketcher.Constraint("Perpendicular", 8, 11),
    Sketcher.Constraint("Horizontal", 2, 2, 5, 2),
    Sketcher.Constraint("Horizontal", 9, 2, 10, 2),
    Sketcher.Constraint("Horizontal", 7, 2, 11, 2),
    Sketcher.Constraint("Vertical", 2, 2, 7, 2),
    Sketcher.Constraint("Vertical", 0, 2, 8, 2),
    Sketcher.Constraint("Vertical", 5, 2, 10, 2),
    Sketcher.Constraint("Vertical", 6, 2, 11, 2),
    Sketcher.Constraint("Equal", 0, 4),
    Sketcher.Constraint("DistanceY", 3, 2, 3, 1, 24.0),
    Sketcher.Constraint("DistanceX", 0, 1, 0, 2, 4.1),
    Sketcher.Constraint("DistanceX", 0, 2, 4, 2, 22.0),
    Sketcher.Constraint("DistanceY", 8, 2, 4, 2, 46.0),
    Sketcher.Constraint("DistanceX", 0, 2, -1, 1, 10.855445),
    Sketcher.Constraint("DistanceY", -1, 1, 0, 2, 38.044803),
])
pocket9 = doc.addObject("PartDesign::Pocket", "Pocket008")
body.addObject(pocket9)
pocket9.Profile = sketch13
pocket9.Type = "ThroughAll"
pocket9.Reversed = True

# Sketch on XY plane
sketch14 = doc.addObject("Sketcher::SketchObject", "Sketch013")
body.addObject(sketch14)
sketch14.AttachmentSupport = (doc.XY_Plane, [""])
sketch14.MapMode = "FlatFace"
sketch14.AttachmentOffset = App.Placement(V(0, 0, 19.6), App.Rotation())
sketch14.addGeometry([
    Part.Circle(V(0.144555, 32.444803, 0), V(0, 0, 1), 1.75),
    Part.Circle(V(0.144555, -26.355197, 0), V(0, 0, 1), 1.75),
], False)
sketch14.addConstraint([
    Sketcher.Constraint("Equal", 0, 1),
    Sketcher.Constraint("Vertical", 0, 3, 1, 3),
    Sketcher.Constraint("Diameter", 0, 3.5),
    Sketcher.Constraint("DistanceY", 1, 3, 0, 3, 58.8),
    Sketcher.Constraint("DistanceX", -1, 1, 0, 3, 0.144555),
    Sketcher.Constraint("DistanceY", -1, 1, 0, 3, 32.444803),
])
pocket10 = doc.addObject("PartDesign::Pocket", "Pocket009")
body.addObject(pocket10)
pocket10.Profile = sketch14
pocket10.Type = "ThroughAll"
pocket10.Reversed = True

# Sketch on YZ plane
sketch15 = doc.addObject("Sketcher::SketchObject", "Sketch014")
body.addObject(sketch15)
sketch15.AttachmentSupport = (doc.YZ_Plane, [""])
sketch15.MapMode = "FlatFace"
sketch15.AttachmentOffset = App.Placement(V(0, 0, -34.855445), App.Rotation())
sketch15.addGeometry([
    Part.LineSegment(V(-6.455197, -12.9, 0), V(-7.055197, -12.9, 0)),
    Part.LineSegment(V(-7.055197, -12.9, 0), V(-7.055197, -7.1, 0)),
    Part.LineSegment(V(-7.055197, -7.1, 0), V(-6.455197, -7.1, 0)),
    Part.LineSegment(V(-6.455197, -7.1, 0), V(-6.455197, -12.9, 0)),
], False)
sketch15.addConstraint([
    Sketcher.Constraint("Coincident", 0, 2, 1, 1),
    Sketcher.Constraint("Coincident", 1, 2, 2, 1),
    Sketcher.Constraint("Coincident", 2, 2, 3, 1),
    Sketcher.Constraint("Coincident", 3, 2, 0, 1),
    Sketcher.Constraint("Horizontal", 0),
    Sketcher.Constraint("Vertical", 1),
    Sketcher.Constraint("Horizontal", 2),
    Sketcher.Constraint("Vertical", 3),
    Sketcher.Constraint("DistanceX", 0, 2, 0, 1, 0.6),
    Sketcher.Constraint("DistanceY", 1, 1, 1, 2, 5.8),
    Sketcher.Constraint("DistanceY", 0, 2, -1, 1, 12.9),
    Sketcher.Constraint("DistanceX", 0, 2, -1, 1, 7.055197),
])
pad5 = doc.addObject("PartDesign::Pad", "Pad004")
body.addObject(pad5)
pad5.Profile = sketch15
pad5.Length = 70

# Sketch on XZ plane
sketch16 = doc.addObject("Sketcher::SketchObject", "Sketch015")
body.addObject(sketch16)
sketch16.AttachmentSupport = (doc.XZ_Plane, [""])
sketch16.MapMode = "FlatFace"
sketch16.AttachmentOffset = App.Placement(V(0, 0, 6.455197), App.Rotation())
sketch16.addGeometry([
    Part.Circle(V(-28.355445, -10, 0), V(0, 0, 1), 1.75),
    Part.Circle(V(28.644555, -10, 0), V(0, 0, 1), 1.75),
    Part.Circle(V(0.144555, -10, 0), V(0, 0, 1), 1.75),
], False)
sketch16.addConstraint([
    Sketcher.Constraint("Equal", 0, 1),
    Sketcher.Constraint("Equal", 1, 2),
    Sketcher.Constraint("Horizontal", 0, 3, 1, 3),
    Sketcher.Constraint("Horizontal", 1, 3, 2, 3),
    Sketcher.Constraint("Diameter", 0, 3.5),
    Sketcher.Constraint("DistanceY", 0, 3, -1, 1, 10.0),
    Sketcher.Constraint("DistanceX", 0, 3, 1, 3, 57.0),
    Sketcher.Constraint("DistanceX", 0, 3, 2, 3, 28.5),
    Sketcher.Constraint("DistanceX", 0, 3, -1, 1, 28.355445),
])
pocket11 = doc.addObject("PartDesign::Pocket", "Pocket010")
body.addObject(pocket11)
pocket11.Profile = sketch16
pocket11.Type = "ThroughAll"
pocket11.Reversed = True

# Sketch on XZ plane
sketch17 = doc.addObject("Sketcher::SketchObject", "Sketch016")
body.addObject(sketch17)
sketch17.AttachmentSupport = (doc.XZ_Plane, [""])
sketch17.MapMode = "FlatFace"
sketch17.AttachmentOffset = App.Placement(V(0, 0, 11.955197), App.Rotation())
sketch17.addGeometry([
    Part.LineSegment(V(15.244555, 5, 0), V(15.244555, 22, 0)),
    Part.LineSegment(V(15.244555, 22, 0), V(35.144555, 6.468293, 0)),
    Part.LineSegment(V(35.144555, 6.468293, 0), V(35.144555, 5, 0)),
    Part.LineSegment(V(35.144555, 5, 0), V(15.244555, 5, 0)),
], False)
sketch17.addConstraint([
    Sketcher.Constraint("Coincident", 0, 2, 1, 1),
    Sketcher.Constraint("Coincident", 1, 2, 2, 1),
    Sketcher.Constraint("Coincident", 2, 2, 3, 1),
    Sketcher.Constraint("Coincident", 3, 2, 0, 1),
    Sketcher.Constraint("Vertical", 0),
    Sketcher.Constraint("Vertical", 2),
    Sketcher.Constraint("Horizontal", 3),
    Sketcher.Constraint("DistanceY", 0, 1, 0, 2, 17.0),
    Sketcher.Constraint("DistanceX", 3, 2, 3, 1, 19.9),
    Sketcher.Constraint("DistanceY", -1, 1, 0, 2, 22.0),
    Sketcher.Constraint("Distance", 1, 25.243691),
    Sketcher.Constraint("DistanceX", -1, 1, 0, 2, 15.244555),
])
pad6 = doc.addObject("PartDesign::Pad", "Pad005")
body.addObject(pad6)
pad6.Profile = sketch17
pad6.Length = 26
pad6.Reversed = True

# Sketch on XY plane
sketch18 = doc.addObject("Sketcher::SketchObject", "Sketch017")
body.addObject(sketch18)
sketch18.AttachmentSupport = (doc.XY_Plane, [""])
sketch18.MapMode = "FlatFace"
sketch18.AttachmentOffset = App.Placement(V(0, 0, 5), App.Rotation())
sketch18.addGeometry([
    Part.Circle(V(29.544555, 3.044803, 0), V(0, 0, 1), 1.75),
    Part.LineSegment(V(35.144555, -7.955197, 0), V(35.144555, -11.955197, 0)),
    Part.LineSegment(V(35.144555, -11.955197, 0), V(31.144555, -11.955197, 0)),
    Part.LineSegment(V(31.144555, -11.955197, 0), V(35.144555, -7.955197, 0)),
], False)
sketch18.addConstraint([
    Sketcher.Constraint("Coincident", 1, 2, 2, 1),
    Sketcher.Constraint("Coincident", 2, 2, 3, 1),
    Sketcher.Constraint("Coincident", 3, 2, 1, 1),
    Sketcher.Constraint("Vertical", 1),
    Sketcher.Constraint("Horizontal", 2),
    Sketcher.Constraint("Equal", 2, 1),
    Sketcher.Constraint("Diameter", 0, 3.5),
    Sketcher.Constraint("DistanceX", 2, 2, 2, 1, 4.0),
    Sketcher.Constraint("DistanceY", 1, 2, 0, 3, 15.0),
    Sketcher.Constraint("DistanceX", 0, 3, 1, 2, 5.6),
    Sketcher.Constraint("DistanceX", -1, 1, 0, 3, 29.544555),
    Sketcher.Constraint("DistanceY", -1, 1, 0, 3, 3.044803),
])
pocket12 = doc.addObject("PartDesign::Pocket", "Pocket011")
body.addObject(pocket12)
pocket12.Profile = sketch18
pocket12.Type = "ThroughAll"
pocket12.Reversed = True

# Sketch on XY plane
sketch19 = doc.addObject("Sketcher::SketchObject", "Sketch018")
body.addObject(sketch19)
sketch19.AttachmentSupport = (doc.XY_Plane, [""])
sketch19.MapMode = "FlatFace"
sketch19.AttachmentOffset = App.Placement(V(0, 0, 25.2), App.Rotation())
sketch19.addGeometry([
    Part.Circle(V(0.144555, 32.444803, 0), V(0, 0, 1), 3),
    Part.Circle(V(0.144555, -26.355197, 0), V(0, 0, 1), 3),
], False)
sketch19.addConstraint([
    Sketcher.Constraint("Equal", 0, 1),
    Sketcher.Constraint("Vertical", 0, 3, 1, 3),
    Sketcher.Constraint("Diameter", 0, 6.0),
    Sketcher.Constraint("DistanceY", 1, 3, 0, 3, 58.8),
    Sketcher.Constraint("DistanceX", -1, 1, 0, 3, 0.144555),
    Sketcher.Constraint("DistanceY", -1, 1, 0, 3, 32.444803),
])
pocket13 = doc.addObject("PartDesign::Pocket", "Pocket012")
body.addObject(pocket13)
pocket13.Profile = sketch19
pocket13.Length = 3

# Sketch on XY plane
sketch20 = doc.addObject("Sketcher::SketchObject", "Sketch019")
body.addObject(sketch20)
sketch20.AttachmentSupport = (doc.XY_Plane, [""])
sketch20.MapMode = "FlatFace"
sketch20.AttachmentOffset = App.Placement(V(0, 0, 25.2), App.Rotation())
sketch20.addGeometry(Part.Circle(V(29.544555, 3.044803, 0), V(0, 0, 1), 3), False)
sketch20.addConstraint([
    Sketcher.Constraint("Diameter", 0, 6.0),
    Sketcher.Constraint("DistanceX", -1, 1, 0, 3, 29.544555),
    Sketcher.Constraint("DistanceY", -1, 1, 0, 3, 3.044803),
])
pocket14 = doc.addObject("PartDesign::Pocket", "Pocket013")
body.addObject(pocket14)
pocket14.Profile = sketch20
pocket14.Length = 20

# Sketch on YZ plane
sketch21 = doc.addObject("Sketcher::SketchObject", "Sketch020")
body.addObject(sketch21)
sketch21.AttachmentSupport = (doc.YZ_Plane, [""])
sketch21.MapMode = "FlatFace"
sketch21.AttachmentOffset = App.Placement(V(0, 0, -14.955445), App.Rotation())
sketch21.addGeometry([
    Part.Circle(V(32.444803, 10.1, 0), V(0, 0, 1), 3),
    Part.Circle(V(3.044803, 10.1, 0), V(0, 0, 1), 3),
    Part.Circle(V(-26.355197, 10.1, 0), V(0, 0, 1), 3),
], False)
sketch21.addConstraint([
    Sketcher.Constraint("Equal", 0, 1),
    Sketcher.Constraint("Equal", 1, 2),
    Sketcher.Constraint("Horizontal", 0, 3, 1, 3),
    Sketcher.Constraint("Horizontal", 1, 3, 2, 3),
    Sketcher.Constraint("Diameter", 0, 6.0),
    Sketcher.Constraint("DistanceY", -1, 1, 0, 3, 10.1),
    Sketcher.Constraint("DistanceX", 1, 3, 0, 3, 29.4),
    Sketcher.Constraint("DistanceX", 2, 3, 1, 3, 29.4),
    Sketcher.Constraint("DistanceX", -1, 1, 0, 3, 32.444803),
])
pocket15 = doc.addObject("PartDesign::Pocket", "Pocket014")
body.addObject(pocket15)
pocket15.Profile = sketch21
pocket15.Length = 3
pocket15.Reversed = True

# Sketch on XZ plane
sketch22 = doc.addObject("Sketcher::SketchObject", "Sketch021")
body.addObject(sketch22)
sketch22.AttachmentSupport = (doc.XZ_Plane, [""])
sketch22.MapMode = "FlatFace"
sketch22.AttachmentOffset = App.Placement(V(0, 0, 11.955197), App.Rotation())
sketch22.addGeometry([
    Part.Circle(V(-28.355445, -10, 0), V(0, 0, 1), 3),
    Part.Circle(V(0.144555, -10, 0), V(0, 0, 1), 3),
    Part.Circle(V(28.644555, -10, 0), V(0, 0, 1), 3),
], False)
sketch22.addConstraint([
    Sketcher.Constraint("Equal", 0, 1),
    Sketcher.Constraint("Equal", 1, 2),
    Sketcher.Constraint("Horizontal", 0, 3, 1, 3),
    Sketcher.Constraint("Horizontal", 1, 3, 2, 3),
    Sketcher.Constraint("Diameter", 0, 6.0),
    Sketcher.Constraint("DistanceY", 0, 3, -1, 1, 10.0),
    Sketcher.Constraint("DistanceX", 0, 3, 2, 3, 57.0),
    Sketcher.Constraint("DistanceX", 0, 3, 1, 3, 28.5),
    Sketcher.Constraint("DistanceX", 0, 3, -1, 1, 28.355445),
])
pocket16 = doc.addObject("PartDesign::Pocket", "Pocket015")
body.addObject(pocket16)
pocket16.Profile = sketch22
pocket16.Length = 3

# Sketch on XY plane
sketch23 = doc.addObject("Sketcher::SketchObject", "Sketch022")
body.addObject(sketch23)
sketch23.AttachmentSupport = (doc.XY_Plane, [""])
sketch23.MapMode = "FlatFace"
sketch23.AttachmentOffset = App.Placement(V(0, 0, -2), App.Rotation())
sketch23.addGeometry(Part.Circle(V(0.144555, -26.355197, 0), V(0, 0, 1), 3), False)
sketch23.addConstraint([
    Sketcher.Constraint("Diameter", 0, 6.0),
    Sketcher.Constraint("DistanceX", -1, 1, 0, 3, 0.144555),
    Sketcher.Constraint("DistanceY", 0, 3, -1, 1, 26.355197),
])
pocket17 = doc.addObject("PartDesign::Pocket", "Pocket016")
body.addObject(pocket17)
pocket17.Profile = sketch23
pocket17.Length = 3

# Sketch on XY plane
sketch24 = doc.addObject("Sketcher::SketchObject", "Sketch023")
body.addObject(sketch24)
sketch24.AttachmentSupport = (doc.XY_Plane, [""])
sketch24.MapMode = "FlatFace"
sketch24.AttachmentOffset = App.Placement(V(0, 0, 5), App.Rotation())
sketch24.addGeometry(Part.Circle(V(-29.255445, 3.044803, 0), V(0, 0, 1), 3), False)
sketch24.addConstraint([
    Sketcher.Constraint("Diameter", 0, 6.0),
    Sketcher.Constraint("DistanceX", 0, 3, -1, 1, 29.255445),
    Sketcher.Constraint("DistanceY", -1, 1, 0, 3, 3.044803),
])
pocket18 = doc.addObject("PartDesign::Pocket", "Pocket017")
body.addObject(pocket18)
pocket18.Profile = sketch24
pocket18.Length = 3

# Sketch on XZ plane
sketch25 = doc.addObject("Sketcher::SketchObject", "Sketch024")
body.addObject(sketch25)
sketch25.AttachmentSupport = (doc.XZ_Plane, [""])
sketch25.MapMode = "FlatFace"
sketch25.AttachmentOffset = App.Placement(V(0, 0, -38.044803), App.Rotation())
sketch25.addGeometry([
    Part.LineSegment(V(10.244555, 5.4, 0), V(10.244555, 14.8, 0)),
    Part.LineSegment(V(10.244555, 14.8, 0), V(16.944555, 14.8, 0)),
    Part.LineSegment(V(16.944555, 14.8, 0), V(16.944555, 5.4, 0)),
    Part.LineSegment(V(16.944555, 5.4, 0), V(10.244555, 5.4, 0)),
], False)
sketch25.addConstraint([
    Sketcher.Constraint("Coincident", 0, 2, 1, 1),
    Sketcher.Constraint("Coincident", 1, 2, 2, 1),
    Sketcher.Constraint("Coincident", 2, 2, 3, 1),
    Sketcher.Constraint("Coincident", 3, 2, 0, 1),
    Sketcher.Constraint("Vertical", 0),
    Sketcher.Constraint("Horizontal", 1),
    Sketcher.Constraint("Vertical", 2),
    Sketcher.Constraint("Horizontal", 3),
    Sketcher.Constraint("DistanceX", 1, 1, 1, 2, 6.7),
    Sketcher.Constraint("DistanceY", 0, 1, 0, 2, 9.4),
    Sketcher.Constraint("DistanceY", -1, 1, 0, 2, 14.8),
    Sketcher.Constraint("DistanceX", -1, 1, 0, 2, 10.244555),
])
pocket19 = doc.addObject("PartDesign::Pocket", "Pocket018")
body.addObject(pocket19)
pocket19.Profile = sketch25
pocket19.Type = "ThroughAll"
pocket19.Reversed = True

doc.recompute()
